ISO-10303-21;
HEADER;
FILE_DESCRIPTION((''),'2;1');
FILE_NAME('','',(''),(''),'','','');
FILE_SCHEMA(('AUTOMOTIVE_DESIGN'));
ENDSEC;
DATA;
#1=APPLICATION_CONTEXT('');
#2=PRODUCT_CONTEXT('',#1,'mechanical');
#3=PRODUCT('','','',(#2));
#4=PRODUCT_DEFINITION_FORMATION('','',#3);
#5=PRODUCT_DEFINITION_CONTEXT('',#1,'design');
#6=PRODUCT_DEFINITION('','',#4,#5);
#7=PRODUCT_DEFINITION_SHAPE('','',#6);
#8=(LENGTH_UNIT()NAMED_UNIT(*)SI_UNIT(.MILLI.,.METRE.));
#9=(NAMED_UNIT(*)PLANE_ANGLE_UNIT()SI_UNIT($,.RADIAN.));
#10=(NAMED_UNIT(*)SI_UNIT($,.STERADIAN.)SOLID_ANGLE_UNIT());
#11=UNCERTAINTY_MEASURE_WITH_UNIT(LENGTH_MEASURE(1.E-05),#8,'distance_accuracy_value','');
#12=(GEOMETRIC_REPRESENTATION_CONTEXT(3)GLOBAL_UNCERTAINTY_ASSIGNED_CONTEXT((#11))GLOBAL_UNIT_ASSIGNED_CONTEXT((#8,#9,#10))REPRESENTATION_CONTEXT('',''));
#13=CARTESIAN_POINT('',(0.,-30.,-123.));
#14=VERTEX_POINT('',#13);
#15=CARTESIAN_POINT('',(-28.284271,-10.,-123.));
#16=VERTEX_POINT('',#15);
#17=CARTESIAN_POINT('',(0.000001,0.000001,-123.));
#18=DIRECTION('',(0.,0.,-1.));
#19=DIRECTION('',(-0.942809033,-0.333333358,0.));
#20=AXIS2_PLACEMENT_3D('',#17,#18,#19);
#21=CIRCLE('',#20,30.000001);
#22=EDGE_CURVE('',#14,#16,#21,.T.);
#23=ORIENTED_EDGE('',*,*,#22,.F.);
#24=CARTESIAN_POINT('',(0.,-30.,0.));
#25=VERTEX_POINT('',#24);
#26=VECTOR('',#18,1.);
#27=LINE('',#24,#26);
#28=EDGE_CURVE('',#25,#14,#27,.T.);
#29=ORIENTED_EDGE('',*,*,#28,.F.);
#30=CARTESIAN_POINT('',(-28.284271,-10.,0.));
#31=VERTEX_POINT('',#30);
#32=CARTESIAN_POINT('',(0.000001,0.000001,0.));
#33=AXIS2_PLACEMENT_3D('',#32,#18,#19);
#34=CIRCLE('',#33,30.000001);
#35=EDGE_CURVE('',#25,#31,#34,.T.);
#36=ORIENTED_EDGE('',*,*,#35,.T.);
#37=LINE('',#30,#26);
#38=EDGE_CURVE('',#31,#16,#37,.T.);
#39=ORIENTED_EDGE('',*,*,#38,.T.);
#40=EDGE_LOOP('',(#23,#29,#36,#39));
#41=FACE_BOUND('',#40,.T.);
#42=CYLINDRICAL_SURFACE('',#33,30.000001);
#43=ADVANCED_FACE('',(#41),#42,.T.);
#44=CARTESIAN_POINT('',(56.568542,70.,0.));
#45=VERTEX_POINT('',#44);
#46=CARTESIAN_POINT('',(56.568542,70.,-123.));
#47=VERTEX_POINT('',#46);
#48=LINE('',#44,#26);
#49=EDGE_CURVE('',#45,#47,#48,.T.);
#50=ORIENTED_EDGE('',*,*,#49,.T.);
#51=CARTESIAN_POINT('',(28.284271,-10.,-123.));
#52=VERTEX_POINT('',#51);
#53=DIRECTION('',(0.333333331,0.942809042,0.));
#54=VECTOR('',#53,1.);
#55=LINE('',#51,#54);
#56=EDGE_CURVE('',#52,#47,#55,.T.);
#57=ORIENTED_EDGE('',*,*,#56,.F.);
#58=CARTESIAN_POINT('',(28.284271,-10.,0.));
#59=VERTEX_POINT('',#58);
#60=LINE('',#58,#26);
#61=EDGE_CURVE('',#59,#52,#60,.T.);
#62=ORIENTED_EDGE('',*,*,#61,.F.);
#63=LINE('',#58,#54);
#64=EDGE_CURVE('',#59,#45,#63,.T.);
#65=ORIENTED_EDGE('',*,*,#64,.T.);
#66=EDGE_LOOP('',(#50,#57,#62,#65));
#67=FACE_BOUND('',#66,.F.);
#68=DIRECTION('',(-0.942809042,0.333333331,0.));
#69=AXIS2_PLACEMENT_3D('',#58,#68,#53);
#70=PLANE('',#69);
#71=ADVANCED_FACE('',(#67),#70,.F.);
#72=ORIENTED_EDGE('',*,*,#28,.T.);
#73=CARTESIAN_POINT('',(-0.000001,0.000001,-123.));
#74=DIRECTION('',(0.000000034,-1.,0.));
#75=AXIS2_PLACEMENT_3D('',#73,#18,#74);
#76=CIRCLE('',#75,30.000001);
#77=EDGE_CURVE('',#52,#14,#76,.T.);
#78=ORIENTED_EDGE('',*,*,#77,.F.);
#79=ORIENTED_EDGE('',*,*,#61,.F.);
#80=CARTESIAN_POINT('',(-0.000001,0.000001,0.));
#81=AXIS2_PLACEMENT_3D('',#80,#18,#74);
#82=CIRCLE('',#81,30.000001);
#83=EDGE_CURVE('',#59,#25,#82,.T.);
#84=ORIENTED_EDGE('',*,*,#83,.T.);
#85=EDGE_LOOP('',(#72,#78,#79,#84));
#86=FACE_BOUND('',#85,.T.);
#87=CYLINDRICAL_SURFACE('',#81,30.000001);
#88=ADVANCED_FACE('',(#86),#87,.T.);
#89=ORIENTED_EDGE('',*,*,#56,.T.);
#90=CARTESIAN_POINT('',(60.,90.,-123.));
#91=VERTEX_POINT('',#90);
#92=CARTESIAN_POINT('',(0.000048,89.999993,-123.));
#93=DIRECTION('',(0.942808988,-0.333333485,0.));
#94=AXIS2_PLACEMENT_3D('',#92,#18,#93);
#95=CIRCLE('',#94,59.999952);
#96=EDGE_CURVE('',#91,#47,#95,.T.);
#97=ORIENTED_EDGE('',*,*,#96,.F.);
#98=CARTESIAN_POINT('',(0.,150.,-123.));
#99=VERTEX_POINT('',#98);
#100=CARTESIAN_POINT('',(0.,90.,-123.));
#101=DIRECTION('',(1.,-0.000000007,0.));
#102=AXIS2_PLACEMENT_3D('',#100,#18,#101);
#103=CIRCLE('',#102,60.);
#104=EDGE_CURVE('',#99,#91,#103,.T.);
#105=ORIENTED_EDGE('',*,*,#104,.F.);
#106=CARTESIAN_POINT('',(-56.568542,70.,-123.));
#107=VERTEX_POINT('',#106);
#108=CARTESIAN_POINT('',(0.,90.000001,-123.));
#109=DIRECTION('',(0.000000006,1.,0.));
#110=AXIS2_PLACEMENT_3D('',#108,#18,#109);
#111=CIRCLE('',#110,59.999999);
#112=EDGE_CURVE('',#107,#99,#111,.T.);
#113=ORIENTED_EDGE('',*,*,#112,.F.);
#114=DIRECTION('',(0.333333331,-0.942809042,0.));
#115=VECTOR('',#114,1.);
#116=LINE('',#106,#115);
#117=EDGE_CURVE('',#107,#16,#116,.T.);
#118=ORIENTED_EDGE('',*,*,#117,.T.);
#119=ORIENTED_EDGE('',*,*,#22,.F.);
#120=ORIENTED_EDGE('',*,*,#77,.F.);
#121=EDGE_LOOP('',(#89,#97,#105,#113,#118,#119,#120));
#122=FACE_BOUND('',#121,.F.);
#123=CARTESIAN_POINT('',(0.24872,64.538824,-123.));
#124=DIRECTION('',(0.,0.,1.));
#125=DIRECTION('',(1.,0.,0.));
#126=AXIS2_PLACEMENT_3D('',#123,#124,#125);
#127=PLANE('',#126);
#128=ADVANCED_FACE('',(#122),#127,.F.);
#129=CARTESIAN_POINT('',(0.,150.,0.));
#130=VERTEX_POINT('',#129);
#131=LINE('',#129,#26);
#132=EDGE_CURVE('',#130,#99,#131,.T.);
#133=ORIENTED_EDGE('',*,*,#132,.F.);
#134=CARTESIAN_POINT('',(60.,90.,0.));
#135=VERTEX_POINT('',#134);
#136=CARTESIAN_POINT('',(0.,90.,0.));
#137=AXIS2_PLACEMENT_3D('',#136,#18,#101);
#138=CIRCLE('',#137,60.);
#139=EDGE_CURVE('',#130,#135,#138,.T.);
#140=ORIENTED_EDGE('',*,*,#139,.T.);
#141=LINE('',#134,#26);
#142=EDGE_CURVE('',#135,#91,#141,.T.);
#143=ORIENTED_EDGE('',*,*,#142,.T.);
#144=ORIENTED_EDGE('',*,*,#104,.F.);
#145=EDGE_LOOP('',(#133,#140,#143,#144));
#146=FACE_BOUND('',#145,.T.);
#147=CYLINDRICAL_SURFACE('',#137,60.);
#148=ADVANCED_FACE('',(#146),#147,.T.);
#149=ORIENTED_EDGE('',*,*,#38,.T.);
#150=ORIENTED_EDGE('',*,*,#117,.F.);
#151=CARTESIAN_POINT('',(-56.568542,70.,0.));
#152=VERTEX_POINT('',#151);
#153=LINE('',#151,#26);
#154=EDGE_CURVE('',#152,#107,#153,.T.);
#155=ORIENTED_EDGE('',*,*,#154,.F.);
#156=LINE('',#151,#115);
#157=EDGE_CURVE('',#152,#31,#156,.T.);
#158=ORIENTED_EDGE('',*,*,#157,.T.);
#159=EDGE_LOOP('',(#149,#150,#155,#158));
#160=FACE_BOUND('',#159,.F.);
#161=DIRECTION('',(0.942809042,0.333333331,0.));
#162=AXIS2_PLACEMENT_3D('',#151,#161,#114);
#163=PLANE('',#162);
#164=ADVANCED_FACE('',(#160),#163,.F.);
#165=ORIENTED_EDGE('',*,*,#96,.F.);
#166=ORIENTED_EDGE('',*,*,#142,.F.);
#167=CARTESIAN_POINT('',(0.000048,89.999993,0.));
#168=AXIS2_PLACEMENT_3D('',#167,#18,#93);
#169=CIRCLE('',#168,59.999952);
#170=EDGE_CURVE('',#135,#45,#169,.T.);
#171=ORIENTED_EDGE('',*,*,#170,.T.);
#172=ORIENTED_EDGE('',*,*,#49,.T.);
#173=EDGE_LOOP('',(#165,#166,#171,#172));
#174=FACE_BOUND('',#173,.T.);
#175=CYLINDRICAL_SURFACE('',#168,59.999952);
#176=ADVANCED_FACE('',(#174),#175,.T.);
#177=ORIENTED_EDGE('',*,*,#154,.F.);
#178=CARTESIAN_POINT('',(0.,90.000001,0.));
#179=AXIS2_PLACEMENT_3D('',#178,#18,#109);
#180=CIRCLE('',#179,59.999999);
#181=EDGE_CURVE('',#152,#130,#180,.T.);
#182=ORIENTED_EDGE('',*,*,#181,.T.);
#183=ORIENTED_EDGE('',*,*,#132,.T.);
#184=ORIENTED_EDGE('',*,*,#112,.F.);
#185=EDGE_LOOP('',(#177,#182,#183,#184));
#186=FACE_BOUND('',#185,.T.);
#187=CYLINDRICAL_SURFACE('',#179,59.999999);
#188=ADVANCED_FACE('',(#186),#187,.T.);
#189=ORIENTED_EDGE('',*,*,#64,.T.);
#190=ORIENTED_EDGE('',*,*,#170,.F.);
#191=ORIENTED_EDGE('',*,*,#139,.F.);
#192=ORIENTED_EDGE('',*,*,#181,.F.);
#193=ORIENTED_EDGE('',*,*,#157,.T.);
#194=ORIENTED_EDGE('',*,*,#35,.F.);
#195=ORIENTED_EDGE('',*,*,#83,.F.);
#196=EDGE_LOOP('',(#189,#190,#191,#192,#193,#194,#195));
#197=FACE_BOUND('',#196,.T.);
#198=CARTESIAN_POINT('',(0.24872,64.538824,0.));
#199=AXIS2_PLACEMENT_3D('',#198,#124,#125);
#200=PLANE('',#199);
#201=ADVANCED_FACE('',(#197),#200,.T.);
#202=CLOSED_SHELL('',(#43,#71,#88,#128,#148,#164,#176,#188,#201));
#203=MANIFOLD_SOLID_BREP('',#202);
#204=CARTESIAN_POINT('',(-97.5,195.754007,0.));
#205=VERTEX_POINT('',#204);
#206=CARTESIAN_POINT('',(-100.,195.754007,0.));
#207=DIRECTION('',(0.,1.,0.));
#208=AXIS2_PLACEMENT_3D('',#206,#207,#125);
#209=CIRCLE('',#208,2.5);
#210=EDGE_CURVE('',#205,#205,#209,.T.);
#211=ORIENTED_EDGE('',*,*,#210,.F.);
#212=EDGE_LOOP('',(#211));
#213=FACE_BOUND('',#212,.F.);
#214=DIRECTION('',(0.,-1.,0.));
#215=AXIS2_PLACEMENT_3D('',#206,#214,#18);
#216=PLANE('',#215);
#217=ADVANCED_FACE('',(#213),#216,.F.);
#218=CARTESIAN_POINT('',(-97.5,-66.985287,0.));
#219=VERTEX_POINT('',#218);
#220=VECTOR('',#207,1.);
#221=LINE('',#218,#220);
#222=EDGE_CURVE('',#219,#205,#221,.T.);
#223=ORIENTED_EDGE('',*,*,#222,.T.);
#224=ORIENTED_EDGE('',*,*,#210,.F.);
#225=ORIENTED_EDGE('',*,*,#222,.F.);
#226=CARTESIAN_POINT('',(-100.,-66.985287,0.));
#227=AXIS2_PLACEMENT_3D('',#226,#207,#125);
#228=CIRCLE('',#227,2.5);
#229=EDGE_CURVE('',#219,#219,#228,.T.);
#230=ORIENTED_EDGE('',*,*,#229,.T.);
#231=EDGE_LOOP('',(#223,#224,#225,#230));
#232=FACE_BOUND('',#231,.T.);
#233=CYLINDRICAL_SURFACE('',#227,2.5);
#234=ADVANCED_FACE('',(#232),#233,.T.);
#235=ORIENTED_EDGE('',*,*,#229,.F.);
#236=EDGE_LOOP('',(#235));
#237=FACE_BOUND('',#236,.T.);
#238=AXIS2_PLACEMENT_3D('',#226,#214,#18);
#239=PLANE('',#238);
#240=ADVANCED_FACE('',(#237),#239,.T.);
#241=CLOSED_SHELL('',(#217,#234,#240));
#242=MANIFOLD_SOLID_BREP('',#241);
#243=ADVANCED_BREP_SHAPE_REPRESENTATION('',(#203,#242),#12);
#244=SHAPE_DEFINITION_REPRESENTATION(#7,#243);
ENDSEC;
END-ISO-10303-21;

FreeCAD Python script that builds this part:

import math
import FreeCAD as App
import Part
import Sketcher
from FreeCAD import Vector
Q = App.Units.Quantity

doc = App.newDocument("Part")
body = doc.addObject("PartDesign::Body", "Body")

# Sketch on XY plane
sketch1 = doc.addObject("Sketcher::SketchObject", "Sketch")
body.addObject(sketch1)
sketch1.AttachmentSupport = (doc.XY_Plane, [""])
sketch1.MapMode = "FlatFace"
sketch1.addGeometry([
    Part.ArcOfCircle(Part.Circle(Vector(0.000001, 0.000001, 0), Vector(0, 0, 1), 30.000001), math.radians(-160.528778), math.radians(-90.000002)),  # 0
    Part.ArcOfCircle(Part.Circle(Vector(-0.000001, 0.000001, 0), Vector(0, 0, 1), 30.000001), math.radians(-89.999998), math.radians(-19.471222)),  # 1
    Part.LineSegment(Vector(28.284271, -10, 0), Vector(56.568542, 70, 0)),  # 2
    Part.ArcOfCircle(Part.Circle(Vector(0.000048, 89.999993, 0), Vector(0, 0, 1), 59.999952), math.radians(-19.47123), math.radians(0.000006)),  # 3
    Part.ArcOfCircle(Part.Circle(Vector(0, 90, 0), Vector(0, 0, 1), 60), math.radians(0), math.radians(90)),  # 4
    Part.ArcOfCircle(Part.Circle(Vector(0, 90.000001, 0), Vector(0, 0, 1), 59.999999), math.radians(90), math.radians(199.471221)),  # 5
    Part.LineSegment(Vector(-56.568542, 70, 0), Vector(-28.284271, -10, 0)),  # 6
], False)
sketch1.addConstraint([
    Sketcher.Constraint("Coincident", 0, 2, 1, 1),
    Sketcher.Constraint("Coincident", 1, 2, 2, 1),
    Sketcher.Constraint("Coincident", 2, 2, 3, 1),
    Sketcher.Constraint("Coincident", 3, 2, 4, 1),
    Sketcher.Constraint("Coincident", 4, 2, 5, 1),
    Sketcher.Constraint("Coincident", 5, 2, 6, 1),
    Sketcher.Constraint("Coincident", 6, 2, 0, 1),
    Sketcher.Constraint("Coincident", 0, 3, -1, 1),
    Sketcher.Constraint("Coincident", 1, 3, -1, 1),
    Sketcher.Constraint("Coincident", 5, 3, 4, 3),
    Sketcher.Constraint("PointOnObject", 4, 3, -2),
    Sketcher.Constraint("PointOnObject", 0, 2, -2),
    Sketcher.Constraint("PointOnObject", 4, 2, -2),
    Sketcher.Constraint("Radius", 0, Q("30.000001 mm")),
    Sketcher.Constraint("Radius", 4, Q("60 mm")),
    Sketcher.Constraint("DistanceY", -1, 1, 4, 3, Q("90 mm")),
    Sketcher.Constraint("DistanceY", 1, 2, -1, 1, Q("10 mm")),
    Sketcher.Constraint("DistanceY", -1, 1, 2, 2, Q("70 mm")),
    Sketcher.Constraint("DistanceY", -1, 1, 3, 2, Q("90 mm")),
    Sketcher.Constraint("DistanceY", -1, 1, 5, 2, Q("70 mm")),
    Sketcher.Constraint("DistanceY", 6, 2, -1, 1, Q("10 mm")),
    Sketcher.Constraint("Radius", 3, Q("59.999952 mm")),
    Sketcher.Constraint("DistanceX", 4, 3, 2, 2, Q("56.568542 mm")),
])

# Sketch on XZ plane
sketch2 = doc.addObject("Sketcher::SketchObject", "Sketch001")
body.addObject(sketch2)
sketch2.AttachmentSupport = (doc.XZ_Plane, [""])
sketch2.MapMode = "FlatFace"
sketch2.addGeometry(Part.LineSegment(Vector(0, 0, 0), Vector(0, -123, 0)), False)
sketch2.addConstraint([
    Sketcher.Constraint("Vertical", 0),
    Sketcher.Constraint("Coincident", 0, 1, -1, 1),
    Sketcher.Constraint("DistanceY", 0, 2, 0, 1, Q("123 mm")),
])
doc.recompute()

additivepipe = doc.addObject("PartDesign::AdditivePipe", "AdditivePipe")
body.addObject(additivepipe)
additivepipe.Profile = sketch1
additivepipe.Spine = (sketch2, ["Edge1"])
body2 = doc.addObject("PartDesign::Body", "Body001")

# Sketch on XZ plane
sketch3 = doc.addObject("Sketcher::SketchObject", "Sketch002")
body2.addObject(sketch3)
sketch3.AttachmentSupport = (doc.getObject("XZ_Plane001"), [""])
sketch3.MapMode = "FlatFace"
sketch3.AttachmentOffset = App.Placement(Vector(0, 0, 66.985), App.Rotation())
sketch3.addGeometry(Part.Circle(Vector(-100, 0, 0), Vector(0, 0, 1), 2.5), False)
sketch3.addConstraint([
    Sketcher.Constraint("PointOnObject", 0, 3, -1),
    Sketcher.Constraint("Diameter", 0, Q("5 mm")),
    Sketcher.Constraint("DistanceX", 0, 3, -1, 1, Q("100 mm")),
])

# Sketch on XY plane
sketch4 = doc.addObject("Sketcher::SketchObject", "Sketch003")
body2.addObject(sketch4)
sketch4.AttachmentSupport = (doc.getObject("XY_Plane001"), [""])
sketch4.MapMode = "FlatFace"
sketch4.addGeometry(Part.LineSegment(Vector(-100, -67, 0), Vector(-100, 196, 0)), False)
sketch4.addConstraint([
    Sketcher.Constraint("Vertical", 0),
    Sketcher.Constraint("DistanceX", 0, 1, -1, 1, Q("100 mm")),
    Sketcher.Constraint("DistanceY", 0, 1, 0, 2, Q("262.739294 mm")),
    Sketcher.Constraint("DistanceY", 0, 1, -1, 1, Q("66.985287 mm")),
])
doc.recompute()

additivepipe2 = doc.addObject("PartDesign::AdditivePipe", "AdditivePipe001")
body2.addObject(additivepipe2)
additivepipe2.Profile = sketch3
additivepipe2.Spine = (sketch4, ["Edge1"])

doc.recompute()
